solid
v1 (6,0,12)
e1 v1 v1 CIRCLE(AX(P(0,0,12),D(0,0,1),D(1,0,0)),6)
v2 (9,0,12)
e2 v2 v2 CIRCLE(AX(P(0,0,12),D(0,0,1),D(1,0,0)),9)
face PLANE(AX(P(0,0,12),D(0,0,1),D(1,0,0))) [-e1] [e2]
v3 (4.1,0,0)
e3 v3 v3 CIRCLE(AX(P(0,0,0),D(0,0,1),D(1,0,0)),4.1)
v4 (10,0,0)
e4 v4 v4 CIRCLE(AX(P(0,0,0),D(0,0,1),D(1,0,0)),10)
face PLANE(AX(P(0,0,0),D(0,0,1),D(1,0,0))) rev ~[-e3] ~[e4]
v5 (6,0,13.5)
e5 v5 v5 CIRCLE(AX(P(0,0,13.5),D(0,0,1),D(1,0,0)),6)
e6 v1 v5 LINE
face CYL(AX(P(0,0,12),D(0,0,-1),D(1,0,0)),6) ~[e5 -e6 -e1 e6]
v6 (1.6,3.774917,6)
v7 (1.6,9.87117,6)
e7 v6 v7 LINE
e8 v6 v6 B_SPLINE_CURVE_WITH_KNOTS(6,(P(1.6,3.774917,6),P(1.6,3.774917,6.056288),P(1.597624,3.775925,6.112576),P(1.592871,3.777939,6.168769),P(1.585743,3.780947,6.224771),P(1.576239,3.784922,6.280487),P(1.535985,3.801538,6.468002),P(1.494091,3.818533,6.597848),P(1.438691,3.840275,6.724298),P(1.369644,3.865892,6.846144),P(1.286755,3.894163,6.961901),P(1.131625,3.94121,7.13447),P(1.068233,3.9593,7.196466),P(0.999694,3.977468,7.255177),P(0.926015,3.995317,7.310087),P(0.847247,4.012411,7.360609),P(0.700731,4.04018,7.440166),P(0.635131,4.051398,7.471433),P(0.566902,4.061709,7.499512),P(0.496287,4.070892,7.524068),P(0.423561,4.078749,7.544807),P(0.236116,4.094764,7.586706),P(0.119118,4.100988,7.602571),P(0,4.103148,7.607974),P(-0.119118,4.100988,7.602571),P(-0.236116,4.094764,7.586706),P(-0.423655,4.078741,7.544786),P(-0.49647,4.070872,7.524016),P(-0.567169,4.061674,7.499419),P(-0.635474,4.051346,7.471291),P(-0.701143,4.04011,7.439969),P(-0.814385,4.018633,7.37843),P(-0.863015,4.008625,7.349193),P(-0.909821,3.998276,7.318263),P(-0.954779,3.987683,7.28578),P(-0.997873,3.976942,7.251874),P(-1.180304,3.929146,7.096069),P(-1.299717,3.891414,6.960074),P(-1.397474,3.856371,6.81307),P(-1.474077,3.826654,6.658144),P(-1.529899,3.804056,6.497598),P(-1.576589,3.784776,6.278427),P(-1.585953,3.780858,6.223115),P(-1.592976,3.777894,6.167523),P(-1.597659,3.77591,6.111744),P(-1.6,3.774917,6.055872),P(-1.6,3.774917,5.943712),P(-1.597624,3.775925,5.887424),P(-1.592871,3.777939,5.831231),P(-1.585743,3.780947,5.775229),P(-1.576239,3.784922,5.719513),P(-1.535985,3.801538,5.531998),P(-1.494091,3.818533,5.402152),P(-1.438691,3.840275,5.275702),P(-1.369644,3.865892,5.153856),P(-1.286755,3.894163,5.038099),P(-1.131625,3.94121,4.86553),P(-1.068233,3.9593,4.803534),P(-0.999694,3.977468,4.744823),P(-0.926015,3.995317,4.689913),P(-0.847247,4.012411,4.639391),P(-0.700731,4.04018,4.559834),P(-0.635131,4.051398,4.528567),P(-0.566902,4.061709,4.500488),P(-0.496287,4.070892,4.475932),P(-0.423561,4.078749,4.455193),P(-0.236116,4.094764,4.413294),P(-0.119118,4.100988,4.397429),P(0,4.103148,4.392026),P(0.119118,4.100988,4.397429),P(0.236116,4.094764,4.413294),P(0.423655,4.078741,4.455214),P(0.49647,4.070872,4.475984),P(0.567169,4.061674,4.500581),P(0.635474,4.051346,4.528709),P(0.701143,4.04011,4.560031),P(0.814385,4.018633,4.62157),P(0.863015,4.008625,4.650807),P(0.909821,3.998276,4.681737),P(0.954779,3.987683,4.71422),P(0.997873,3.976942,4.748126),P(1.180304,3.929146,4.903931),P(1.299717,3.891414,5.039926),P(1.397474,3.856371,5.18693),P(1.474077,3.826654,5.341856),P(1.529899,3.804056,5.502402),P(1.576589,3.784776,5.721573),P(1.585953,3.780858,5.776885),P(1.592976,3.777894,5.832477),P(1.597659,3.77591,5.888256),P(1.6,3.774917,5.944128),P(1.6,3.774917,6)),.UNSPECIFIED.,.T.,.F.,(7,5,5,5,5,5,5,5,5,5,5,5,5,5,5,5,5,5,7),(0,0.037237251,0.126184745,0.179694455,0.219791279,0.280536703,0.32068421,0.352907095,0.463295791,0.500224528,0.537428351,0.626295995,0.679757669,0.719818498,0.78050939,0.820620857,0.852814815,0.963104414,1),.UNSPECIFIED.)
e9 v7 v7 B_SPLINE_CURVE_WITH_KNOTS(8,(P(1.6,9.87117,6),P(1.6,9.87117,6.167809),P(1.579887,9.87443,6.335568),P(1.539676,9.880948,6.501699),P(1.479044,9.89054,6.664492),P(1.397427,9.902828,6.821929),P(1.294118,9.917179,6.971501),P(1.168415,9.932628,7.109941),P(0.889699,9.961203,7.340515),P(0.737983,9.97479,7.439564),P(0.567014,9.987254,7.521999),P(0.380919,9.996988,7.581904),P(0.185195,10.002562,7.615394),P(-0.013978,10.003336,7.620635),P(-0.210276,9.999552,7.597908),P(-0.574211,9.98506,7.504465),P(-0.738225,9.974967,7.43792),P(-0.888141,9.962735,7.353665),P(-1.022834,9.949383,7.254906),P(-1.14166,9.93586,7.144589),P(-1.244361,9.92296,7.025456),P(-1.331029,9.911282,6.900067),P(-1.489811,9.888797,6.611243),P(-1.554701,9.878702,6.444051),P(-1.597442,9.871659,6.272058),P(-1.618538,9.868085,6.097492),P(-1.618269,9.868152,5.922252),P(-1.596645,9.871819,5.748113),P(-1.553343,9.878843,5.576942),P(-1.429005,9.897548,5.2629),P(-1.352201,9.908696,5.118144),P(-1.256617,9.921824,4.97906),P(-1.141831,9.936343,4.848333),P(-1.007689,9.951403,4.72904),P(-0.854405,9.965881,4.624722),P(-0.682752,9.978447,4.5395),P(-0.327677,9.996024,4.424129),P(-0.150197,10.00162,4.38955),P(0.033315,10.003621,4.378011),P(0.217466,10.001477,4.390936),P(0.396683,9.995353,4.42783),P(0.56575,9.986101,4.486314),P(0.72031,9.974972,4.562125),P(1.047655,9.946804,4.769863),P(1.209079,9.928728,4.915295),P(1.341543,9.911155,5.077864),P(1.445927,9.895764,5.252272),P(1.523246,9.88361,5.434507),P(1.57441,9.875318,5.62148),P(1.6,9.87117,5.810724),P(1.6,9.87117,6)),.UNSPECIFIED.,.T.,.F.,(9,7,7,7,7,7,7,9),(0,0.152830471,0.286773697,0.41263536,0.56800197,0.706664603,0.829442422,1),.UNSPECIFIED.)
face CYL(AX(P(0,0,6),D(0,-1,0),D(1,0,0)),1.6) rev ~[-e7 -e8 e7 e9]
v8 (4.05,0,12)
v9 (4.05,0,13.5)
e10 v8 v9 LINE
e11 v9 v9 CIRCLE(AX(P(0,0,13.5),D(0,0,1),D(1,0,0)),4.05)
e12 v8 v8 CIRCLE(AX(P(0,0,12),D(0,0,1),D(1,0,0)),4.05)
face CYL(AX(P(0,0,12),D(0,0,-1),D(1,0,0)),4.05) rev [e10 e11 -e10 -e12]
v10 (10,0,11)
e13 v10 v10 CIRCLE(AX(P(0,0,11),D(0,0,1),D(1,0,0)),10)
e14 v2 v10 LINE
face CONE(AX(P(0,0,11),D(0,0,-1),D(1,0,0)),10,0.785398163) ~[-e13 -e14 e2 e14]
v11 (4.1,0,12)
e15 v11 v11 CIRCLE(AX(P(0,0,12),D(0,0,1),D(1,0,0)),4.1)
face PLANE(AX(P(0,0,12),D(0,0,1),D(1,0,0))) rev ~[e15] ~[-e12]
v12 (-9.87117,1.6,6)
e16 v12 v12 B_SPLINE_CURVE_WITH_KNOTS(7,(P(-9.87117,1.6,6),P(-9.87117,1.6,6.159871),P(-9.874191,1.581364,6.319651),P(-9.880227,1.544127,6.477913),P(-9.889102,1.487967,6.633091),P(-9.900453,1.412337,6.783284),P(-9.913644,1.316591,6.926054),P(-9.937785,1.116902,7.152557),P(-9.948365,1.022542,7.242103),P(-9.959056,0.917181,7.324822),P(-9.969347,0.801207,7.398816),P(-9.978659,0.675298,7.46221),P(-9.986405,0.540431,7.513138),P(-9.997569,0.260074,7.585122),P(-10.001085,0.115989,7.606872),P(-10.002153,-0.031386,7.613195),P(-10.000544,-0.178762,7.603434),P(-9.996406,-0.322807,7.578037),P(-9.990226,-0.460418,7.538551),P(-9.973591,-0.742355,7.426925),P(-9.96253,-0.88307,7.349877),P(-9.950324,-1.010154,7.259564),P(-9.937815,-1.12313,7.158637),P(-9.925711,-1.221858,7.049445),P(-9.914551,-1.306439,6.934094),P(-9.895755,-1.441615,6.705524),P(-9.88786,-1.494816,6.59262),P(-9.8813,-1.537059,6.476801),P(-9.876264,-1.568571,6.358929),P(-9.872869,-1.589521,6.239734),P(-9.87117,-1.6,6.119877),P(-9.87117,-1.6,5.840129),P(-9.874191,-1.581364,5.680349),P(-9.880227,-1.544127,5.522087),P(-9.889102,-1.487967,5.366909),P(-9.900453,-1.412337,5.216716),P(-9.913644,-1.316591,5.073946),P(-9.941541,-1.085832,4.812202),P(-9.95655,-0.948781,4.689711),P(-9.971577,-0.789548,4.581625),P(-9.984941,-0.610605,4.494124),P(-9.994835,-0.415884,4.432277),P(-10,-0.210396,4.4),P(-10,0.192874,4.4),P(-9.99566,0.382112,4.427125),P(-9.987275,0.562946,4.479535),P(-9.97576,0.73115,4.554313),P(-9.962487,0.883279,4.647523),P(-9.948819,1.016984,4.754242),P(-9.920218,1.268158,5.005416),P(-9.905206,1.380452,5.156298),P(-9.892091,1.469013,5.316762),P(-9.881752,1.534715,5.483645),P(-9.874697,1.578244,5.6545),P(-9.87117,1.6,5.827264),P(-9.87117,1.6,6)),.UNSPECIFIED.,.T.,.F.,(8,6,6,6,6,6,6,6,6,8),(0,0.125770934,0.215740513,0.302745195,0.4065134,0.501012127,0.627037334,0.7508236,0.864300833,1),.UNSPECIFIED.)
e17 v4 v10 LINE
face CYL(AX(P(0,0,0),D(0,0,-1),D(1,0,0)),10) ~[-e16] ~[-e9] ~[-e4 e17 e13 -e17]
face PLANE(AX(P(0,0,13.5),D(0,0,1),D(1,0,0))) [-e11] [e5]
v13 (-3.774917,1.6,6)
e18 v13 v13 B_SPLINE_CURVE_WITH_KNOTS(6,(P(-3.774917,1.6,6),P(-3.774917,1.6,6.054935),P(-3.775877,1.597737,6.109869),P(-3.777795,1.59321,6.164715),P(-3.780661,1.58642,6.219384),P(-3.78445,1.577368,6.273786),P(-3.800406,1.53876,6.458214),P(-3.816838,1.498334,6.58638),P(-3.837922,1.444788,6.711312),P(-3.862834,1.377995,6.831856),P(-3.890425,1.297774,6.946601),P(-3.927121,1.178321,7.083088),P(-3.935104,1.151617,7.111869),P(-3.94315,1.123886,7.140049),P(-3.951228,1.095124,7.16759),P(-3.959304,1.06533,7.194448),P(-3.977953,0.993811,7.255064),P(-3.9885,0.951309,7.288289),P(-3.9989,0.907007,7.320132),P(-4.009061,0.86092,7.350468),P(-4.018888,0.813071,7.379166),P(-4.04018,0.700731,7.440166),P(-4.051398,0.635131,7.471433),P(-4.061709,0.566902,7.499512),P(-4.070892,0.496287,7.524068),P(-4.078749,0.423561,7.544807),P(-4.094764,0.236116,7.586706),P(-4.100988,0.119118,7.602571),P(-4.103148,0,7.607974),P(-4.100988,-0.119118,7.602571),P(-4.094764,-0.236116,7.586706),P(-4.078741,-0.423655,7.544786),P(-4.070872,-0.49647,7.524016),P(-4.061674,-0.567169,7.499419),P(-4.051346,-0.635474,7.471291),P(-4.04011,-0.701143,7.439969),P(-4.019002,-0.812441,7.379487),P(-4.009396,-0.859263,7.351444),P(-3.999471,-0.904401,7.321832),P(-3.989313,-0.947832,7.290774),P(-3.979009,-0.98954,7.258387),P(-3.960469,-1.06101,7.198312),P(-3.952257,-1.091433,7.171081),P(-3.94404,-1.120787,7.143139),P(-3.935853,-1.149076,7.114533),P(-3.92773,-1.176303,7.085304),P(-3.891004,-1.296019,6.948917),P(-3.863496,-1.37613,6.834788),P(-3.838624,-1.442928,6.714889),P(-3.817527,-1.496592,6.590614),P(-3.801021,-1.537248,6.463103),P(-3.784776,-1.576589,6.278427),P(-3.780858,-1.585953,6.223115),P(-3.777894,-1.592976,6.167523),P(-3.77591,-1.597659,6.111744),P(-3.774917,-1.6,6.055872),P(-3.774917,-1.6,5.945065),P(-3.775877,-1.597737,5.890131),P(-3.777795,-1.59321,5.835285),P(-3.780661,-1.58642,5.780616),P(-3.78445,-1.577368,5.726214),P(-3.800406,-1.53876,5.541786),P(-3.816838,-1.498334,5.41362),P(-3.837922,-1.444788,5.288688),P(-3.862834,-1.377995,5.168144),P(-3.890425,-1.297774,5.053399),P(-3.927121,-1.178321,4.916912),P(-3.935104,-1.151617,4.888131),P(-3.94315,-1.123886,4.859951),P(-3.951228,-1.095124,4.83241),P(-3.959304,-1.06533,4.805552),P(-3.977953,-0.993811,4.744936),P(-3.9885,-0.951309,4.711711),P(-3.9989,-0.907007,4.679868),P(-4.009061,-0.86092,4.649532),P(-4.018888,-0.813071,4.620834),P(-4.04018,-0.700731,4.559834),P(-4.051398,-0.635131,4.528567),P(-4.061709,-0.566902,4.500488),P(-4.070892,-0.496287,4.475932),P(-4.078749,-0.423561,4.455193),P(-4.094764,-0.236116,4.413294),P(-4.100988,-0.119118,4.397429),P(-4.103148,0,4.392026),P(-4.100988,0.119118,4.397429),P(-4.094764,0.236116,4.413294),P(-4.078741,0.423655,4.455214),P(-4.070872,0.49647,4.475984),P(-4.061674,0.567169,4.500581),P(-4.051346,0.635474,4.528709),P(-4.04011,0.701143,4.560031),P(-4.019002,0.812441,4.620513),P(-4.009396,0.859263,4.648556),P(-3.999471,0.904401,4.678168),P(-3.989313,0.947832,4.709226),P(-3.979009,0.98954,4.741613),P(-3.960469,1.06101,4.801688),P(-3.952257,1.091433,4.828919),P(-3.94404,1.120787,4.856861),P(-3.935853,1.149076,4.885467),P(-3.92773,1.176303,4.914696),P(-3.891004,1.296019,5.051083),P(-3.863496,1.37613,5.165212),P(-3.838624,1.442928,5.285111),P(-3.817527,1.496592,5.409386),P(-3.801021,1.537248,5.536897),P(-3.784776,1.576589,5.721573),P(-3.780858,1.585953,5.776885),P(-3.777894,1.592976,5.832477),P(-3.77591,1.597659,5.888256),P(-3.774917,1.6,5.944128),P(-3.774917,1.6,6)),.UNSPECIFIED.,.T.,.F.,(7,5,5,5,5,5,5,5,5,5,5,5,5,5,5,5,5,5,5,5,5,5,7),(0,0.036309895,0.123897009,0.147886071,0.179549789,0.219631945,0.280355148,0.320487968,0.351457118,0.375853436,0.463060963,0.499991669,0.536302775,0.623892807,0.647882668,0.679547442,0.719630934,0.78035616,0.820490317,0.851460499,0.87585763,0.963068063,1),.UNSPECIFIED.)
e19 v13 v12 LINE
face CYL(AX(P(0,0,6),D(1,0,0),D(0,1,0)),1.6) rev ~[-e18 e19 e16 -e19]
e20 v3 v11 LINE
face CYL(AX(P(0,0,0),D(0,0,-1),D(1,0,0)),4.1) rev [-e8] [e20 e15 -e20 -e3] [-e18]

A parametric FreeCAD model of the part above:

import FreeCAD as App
import Part
import Sketcher
from FreeCAD import Vector
Q = App.Units.Quantity


def edges_at(feature, points):
    """Names of the edges that pass closest to the given points."""
    edges = feature.Shape.Edges
    near = lambda p: min(range(len(edges)), key=lambda i: edges[i].distToShape(Part.Vertex(*p))[0])
    return sorted({f"Edge{near(p) + 1}" for p in points})

doc = App.newDocument("Part")
body = doc.addObject("PartDesign::Body", "Body")

# Sketch on XY plane
sketch1 = body.newObject("Sketcher::SketchObject", "Sketch")
sketch1.AttachmentSupport = (doc.getObject("XY_Plane"), [""])
sketch1.MapMode = "FlatFace"
sketch1.addGeometry([
    Part.Circle(Vector(0, 0, 0), Vector(0, 0, 1), 10),
    Part.Circle(Vector(0, 0, 0), Vector(0, 0, 1), 4.1),
], False)
sketch1.addConstraint([
    Sketcher.Constraint("Coincident", 0, 3, -1, 1),
    Sketcher.Constraint("Coincident", 1, 3, -1, 1),
    Sketcher.Constraint("Diameter", 0, Q("20 mm")),
    Sketcher.Constraint("Diameter", 1, Q("8.2 mm")),
])
pad1 = body.newObject("PartDesign::Pad", "Pad")
pad1.Profile = sketch1
pad1.Length = 12

# Sketch on XZ plane
sketch2 = body.newObject("Sketcher::SketchObject", "Sketch001")
sketch2.AttachmentSupport = (doc.getObject("XZ_Plane"), [""])
sketch2.MapMode = "FlatFace"
sketch2.addGeometry(Part.Circle(Vector(0, 6, 0), Vector(0, 0, 1), 1.6), False)
sketch2.addConstraint([
    Sketcher.Constraint("PointOnObject", 0, 3, -2),
    Sketcher.Constraint("Diameter", 0, Q("3.2 mm")),
    Sketcher.Constraint("DistanceY", -1, 1, 0, 3, Q("6 mm")),
])
pocket1 = body.newObject("PartDesign::Pocket", "Pocket")
pocket1.Profile = sketch2
pocket1.Length = 25

# Sketch on YZ plane
sketch3 = body.newObject("Sketcher::SketchObject", "Sketch002")
sketch3.AttachmentSupport = (doc.getObject("YZ_Plane"), [""])
sketch3.MapMode = "FlatFace"
sketch3.addGeometry(Part.Circle(Vector(0, 6, 0), Vector(0, 0, 1), 1.6), False)
sketch3.addConstraint([
    Sketcher.Constraint("PointOnObject", 0, 3, -2),
    Sketcher.Constraint("Diameter", 0, Q("3.2 mm")),
    Sketcher.Constraint("DistanceY", -1, 1, 0, 3, Q("6 mm")),
])
pocket2 = body.newObject("PartDesign::Pocket", "Pocket001")
pocket2.Profile = sketch3
pocket2.Length = 25

# Sketch on XY plane
sketch4 = body.newObject("Sketcher::SketchObject", "Sketch003")
sketch4.AttachmentSupport = (doc.getObject("XY_Plane"), [""])
sketch4.MapMode = "FlatFace"
sketch4.AttachmentOffset = App.Placement(Vector(0, 0, 12), App.Rotation())
sketch4.addGeometry([
    Part.Circle(Vector(0, 0, 0), Vector(0, 0, 1), 6),
    Part.Circle(Vector(0, 0, 0), Vector(0, 0, 1), 4),
], False)
sketch4.addConstraint([
    Sketcher.Constraint("Coincident", 0, 3, -1, 1),
    Sketcher.Constraint("Coincident", 1, 3, -1, 1),
    Sketcher.Constraint("Diameter", 0, Q("12 mm")),
    Sketcher.Constraint("Diameter", 1, Q("8.1 mm")),
])
pad2 = body.newObject("PartDesign::Pad", "Pad001")
pad2.Profile = sketch4
pad2.Length = 1.5
doc.recompute()

chamfer = body.newObject("PartDesign::Chamfer", "Chamfer")
chamfer.Base = (pad2, edges_at(pad2, [(-10, 0, 12)]))
chamfer.Size = 1

doc.recompute()
